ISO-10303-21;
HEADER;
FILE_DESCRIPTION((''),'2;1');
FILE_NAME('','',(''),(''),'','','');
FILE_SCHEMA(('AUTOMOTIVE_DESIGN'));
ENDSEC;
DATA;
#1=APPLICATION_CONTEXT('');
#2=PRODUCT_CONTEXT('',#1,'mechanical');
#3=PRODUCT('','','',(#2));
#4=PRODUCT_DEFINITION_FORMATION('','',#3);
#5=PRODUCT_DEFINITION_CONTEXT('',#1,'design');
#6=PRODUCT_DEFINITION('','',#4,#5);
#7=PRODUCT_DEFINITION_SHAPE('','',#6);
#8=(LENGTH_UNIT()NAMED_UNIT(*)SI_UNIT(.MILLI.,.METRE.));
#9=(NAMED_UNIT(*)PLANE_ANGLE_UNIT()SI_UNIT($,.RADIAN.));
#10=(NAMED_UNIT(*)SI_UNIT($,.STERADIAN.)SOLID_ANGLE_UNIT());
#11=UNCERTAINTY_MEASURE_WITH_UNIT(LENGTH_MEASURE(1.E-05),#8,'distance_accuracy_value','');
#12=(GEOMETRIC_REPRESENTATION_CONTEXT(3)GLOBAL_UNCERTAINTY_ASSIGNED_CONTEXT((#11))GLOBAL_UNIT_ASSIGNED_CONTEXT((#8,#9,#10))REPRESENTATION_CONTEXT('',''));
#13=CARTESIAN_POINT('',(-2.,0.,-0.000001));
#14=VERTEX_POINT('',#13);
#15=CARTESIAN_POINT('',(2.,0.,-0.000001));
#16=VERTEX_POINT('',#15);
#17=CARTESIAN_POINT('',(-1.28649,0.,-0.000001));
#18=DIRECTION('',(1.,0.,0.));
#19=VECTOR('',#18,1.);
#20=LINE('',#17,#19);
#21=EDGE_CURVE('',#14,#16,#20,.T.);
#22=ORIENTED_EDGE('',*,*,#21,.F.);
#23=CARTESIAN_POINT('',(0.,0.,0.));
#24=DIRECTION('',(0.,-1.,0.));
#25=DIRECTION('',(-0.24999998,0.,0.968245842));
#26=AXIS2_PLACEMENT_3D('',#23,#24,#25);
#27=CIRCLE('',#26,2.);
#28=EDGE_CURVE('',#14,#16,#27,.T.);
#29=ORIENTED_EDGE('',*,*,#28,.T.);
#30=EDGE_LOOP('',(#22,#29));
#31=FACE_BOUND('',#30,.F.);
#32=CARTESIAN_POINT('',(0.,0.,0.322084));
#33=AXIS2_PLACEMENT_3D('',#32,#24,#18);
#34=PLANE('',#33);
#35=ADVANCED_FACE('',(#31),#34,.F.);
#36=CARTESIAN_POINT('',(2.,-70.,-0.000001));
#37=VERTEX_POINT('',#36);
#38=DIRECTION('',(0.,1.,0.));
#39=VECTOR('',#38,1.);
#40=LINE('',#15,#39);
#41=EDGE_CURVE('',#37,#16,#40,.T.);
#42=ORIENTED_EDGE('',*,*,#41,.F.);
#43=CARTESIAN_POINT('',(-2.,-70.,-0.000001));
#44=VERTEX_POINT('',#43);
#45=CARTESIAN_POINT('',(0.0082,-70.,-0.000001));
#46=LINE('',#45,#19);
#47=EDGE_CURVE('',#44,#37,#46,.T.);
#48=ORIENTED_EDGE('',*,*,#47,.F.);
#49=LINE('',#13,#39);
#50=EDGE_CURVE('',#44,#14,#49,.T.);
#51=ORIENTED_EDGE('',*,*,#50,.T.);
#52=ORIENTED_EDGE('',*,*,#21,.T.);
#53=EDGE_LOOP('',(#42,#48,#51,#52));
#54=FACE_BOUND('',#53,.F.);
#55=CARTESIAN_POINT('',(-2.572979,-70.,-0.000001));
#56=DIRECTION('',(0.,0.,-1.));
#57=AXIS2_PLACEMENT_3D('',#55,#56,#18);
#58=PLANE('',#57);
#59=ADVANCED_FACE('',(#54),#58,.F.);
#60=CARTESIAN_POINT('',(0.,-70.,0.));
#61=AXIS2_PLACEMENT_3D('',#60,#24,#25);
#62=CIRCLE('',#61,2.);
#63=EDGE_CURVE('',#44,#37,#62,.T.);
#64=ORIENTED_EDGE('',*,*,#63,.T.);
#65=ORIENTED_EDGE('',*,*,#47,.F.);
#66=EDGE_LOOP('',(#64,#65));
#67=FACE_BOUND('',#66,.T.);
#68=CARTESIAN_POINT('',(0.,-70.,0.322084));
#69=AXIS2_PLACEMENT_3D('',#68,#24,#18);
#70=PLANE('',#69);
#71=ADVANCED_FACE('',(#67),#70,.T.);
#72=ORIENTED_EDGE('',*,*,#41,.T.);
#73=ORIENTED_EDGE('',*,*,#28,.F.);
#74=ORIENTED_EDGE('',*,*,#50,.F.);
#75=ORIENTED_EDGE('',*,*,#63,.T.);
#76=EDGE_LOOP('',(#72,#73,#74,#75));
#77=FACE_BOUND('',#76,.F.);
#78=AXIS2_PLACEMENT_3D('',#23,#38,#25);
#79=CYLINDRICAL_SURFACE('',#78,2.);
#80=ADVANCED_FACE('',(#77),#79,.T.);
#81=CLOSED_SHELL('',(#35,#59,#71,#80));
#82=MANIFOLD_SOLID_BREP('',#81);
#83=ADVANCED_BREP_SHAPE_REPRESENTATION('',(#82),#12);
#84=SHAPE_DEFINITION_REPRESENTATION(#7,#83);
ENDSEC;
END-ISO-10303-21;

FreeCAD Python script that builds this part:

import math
import FreeCAD as App
import Part
import Sketcher
from FreeCAD import Vector
Q = App.Units.Quantity


def add_polygon(sketch, points):
    """Adds a closed chain of lines whose ends are joined by coincident constraints."""
    first, n = sketch.GeometryCount, len(points)
    for a, b in zip(points, points[1:] + points[:1]):
        sketch.addGeometry(Part.LineSegment(App.Vector(*a, 0), App.Vector(*b, 0)), False)
    for i in range(n):
        sketch.addConstraint(Sketcher.Constraint("Coincident", first + i, 2, first + (i + 1) % n, 1))

doc = App.newDocument("Part")
body = doc.addObject("PartDesign::Body", "Body")

sketch1 = body.newObject("Sketcher::SketchObject", "Sketch")
sketch1.AttachmentSupport = (doc.getObject("XZ_Plane"), [""])
sketch1.MapMode = "FlatFace"
sketch1.addGeometry(Part.LineSegment(Vector(-0.5, 2.5, 0), Vector(-0.5, 1.9, 0)), False)
sketch1.addGeometry(Part.ArcOfCircle(Part.Circle(Vector(0, 0, 0), Vector(0, 0, 1), 2), math.radians(104), math.radians(436)), False)
sketch1.addGeometry(Part.LineSegment(Vector(0.5, 1.9, 0), Vector(0.5, 2.5, 0)), False)
sketch1.addGeometry(Part.LineSegment(Vector(0.5, 2.5, 0), Vector(-0.5, 2.5, 0)), False)
sketch1.addConstraint(Sketcher.Constraint("Coincident", 0, 2, 1, 1))
sketch1.addConstraint(Sketcher.Constraint("Coincident", 1, 2, 2, 1))
sketch1.addConstraint(Sketcher.Constraint("Coincident", 2, 2, 3, 1))
sketch1.addConstraint(Sketcher.Constraint("Coincident", 3, 2, 0, 1))
sketch1.addConstraint(Sketcher.Constraint("Vertical", 0))
sketch1.addConstraint(Sketcher.Constraint("Vertical", 2))
sketch1.addConstraint(Sketcher.Constraint("Horizontal", 3))
sketch1.addConstraint(Sketcher.Constraint("Coincident", 1, 3, -1, 1))
sketch1.addConstraint(Sketcher.Constraint("Horizontal", 0, 2, 1, 2))
sketch1.addConstraint(Sketcher.Constraint("Radius", 1, Q("2 mm")))
sketch1.addConstraint(Sketcher.Constraint("DistanceX", 3, 2, 3, 1, Q("1 mm")))
sketch1.addConstraint(Sketcher.Constraint("DistanceY", -1, 1, 2, 2, Q("2.5 mm")))
pad1 = body.newObject("PartDesign::Pad", "Pad")
pad1.Profile = sketch1
pad1.Length = 70

sketch2 = body.newObject("Sketcher::SketchObject", "Sketch001")
sketch2.AttachmentSupport = (doc.getObject("XZ_Plane"), [""])
sketch2.MapMode = "FlatFace"
sketch2.AttachmentOffset = App.Placement(Vector(0, 0, 60), App.Rotation())
sketch2.addGeometry(Part.ArcOfCircle(Part.Circle(Vector(0, 0.1, 0), Vector(0, 0, 1), 2), math.radians(75), math.radians(104)), False)
sketch2.addGeometry(Part.LineSegment(Vector(0.5, 2, 0), Vector(0.5, 2.6, 0)), False)
sketch2.addGeometry(Part.LineSegment(Vector(0.5, 2.6, 0), Vector(-0.5, 2.6, 0)), False)
sketch2.addGeometry(Part.LineSegment(Vector(-0.5, 2.6, 0), Vector(-0.5, 2, 0)), False)
sketch2.addConstraint(Sketcher.Constraint("Coincident", 0, 1, 1, 1))
sketch2.addConstraint(Sketcher.Constraint("Coincident", 1, 2, 2, 1))
sketch2.addConstraint(Sketcher.Constraint("Coincident", 2, 2, 3, 1))
sketch2.addConstraint(Sketcher.Constraint("Coincident", 3, 2, 0, 2))
sketch2.addConstraint(Sketcher.Constraint("Horizontal", 2))
sketch2.addConstraint(Sketcher.Constraint("Vertical", 3))
sketch2.addConstraint(Sketcher.Constraint("PointOnObject", 0, 3, -2))
sketch2.addConstraint(Sketcher.Constraint("DistanceX", 2, 2, 2, 1, Q("1 mm")))
sketch2.addConstraint(Sketcher.Constraint("DistanceX", -1, 1, 1, 2, Q("0.5 mm")))
sketch2.addConstraint(Sketcher.Constraint("Radius", 0, Q("1.999996 mm")))
sketch2.addConstraint(Sketcher.Constraint("DistanceY", 3, 2, 3, 1, Q("0.563508 mm")))
sketch2.addConstraint(Sketcher.Constraint("Distance", 1, Q("0.563829 mm")))
sketch2.addConstraint(Sketcher.Constraint("DistanceY", -1, 1, 0, 3, Q("0.089148 mm")))
pocket1 = body.newObject("PartDesign::Pocket", "Pocket")
pocket1.Profile = sketch2
pocket1.Length = 20

sketch3 = body.newObject("Sketcher::SketchObject", "Sketch002")
sketch3.AttachmentSupport = (doc.getObject("XZ_Plane"), [""])
sketch3.MapMode = "FlatFace"
sketch3.AttachmentOffset = App.Placement(Vector(0, 0, 60), App.Rotation())
sketch3.addGeometry(Part.LineSegment(Vector(-0.5, 2.5, 0), Vector(-0.5, 1.9, 0)), False)
sketch3.addGeometry(Part.ArcOfCircle(Part.Circle(Vector(0, 0, 0), Vector(0, 0, 1), 2), math.radians(76), math.radians(104)), False)
sketch3.addGeometry(Part.LineSegment(Vector(0.5, 1.9, 0), Vector(0.5, 2.5, 0)), False)
sketch3.addGeometry(Part.LineSegment(Vector(0.5, 2.5, 0), Vector(-0.5, 2.5, 0)), False)
sketch3.addConstraint(Sketcher.Constraint("Coincident", 0, 2, 1, 2))
sketch3.addConstraint(Sketcher.Constraint("Coincident", 1, 1, 2, 1))
sketch3.addConstraint(Sketcher.Constraint("Coincident", 2, 2, 3, 1))
sketch3.addConstraint(Sketcher.Constraint("Coincident", 3, 2, 0, 1))
sketch3.addConstraint(Sketcher.Constraint("Vertical", 0))
sketch3.addConstraint(Sketcher.Constraint("Vertical", 2))
sketch3.addConstraint(Sketcher.Constraint("Horizontal", 3))
sketch3.addConstraint(Sketcher.Constraint("Coincident", 1, 3, -1, 1))
sketch3.addConstraint(Sketcher.Constraint("Horizontal", 0, 2, 1, 1))
sketch3.addConstraint(Sketcher.Constraint("DistanceX", 3, 2, 3, 1, Q("1 mm")))
sketch3.addConstraint(Sketcher.Constraint("DistanceY", -1, 1, 2, 2, Q("2.5 mm")))
sketch3.addConstraint(Sketcher.Constraint("Radius", 1, Q("2.00001 mm")))
pocket2 = body.newObject("PartDesign::Pocket", "Pocket001")
pocket2.Profile = sketch3
pocket2.Length = 15

sketch4 = body.newObject("Sketcher::SketchObject", "Sketch003")
sketch4.AttachmentSupport = (doc.getObject("XZ_Plane"), [""])
sketch4.MapMode = "FlatFace"
sketch4.AttachmentOffset = App.Placement(Vector(0, 0, 70), App.Rotation())
add_polygon(sketch4, [(-2.6, 3.3), (-2.6, 0), (2.6, 0), (2.6, 3.3)])
sketch4.addConstraint(Sketcher.Constraint("Vertical", 0))
sketch4.addConstraint(Sketcher.Constraint("Horizontal", 1))
sketch4.addConstraint(Sketcher.Constraint("Vertical", 2))
sketch4.addConstraint(Sketcher.Constraint("Horizontal", 3))
sketch4.addConstraint(Sketcher.Constraint("PointOnObject", 0, 2, -1))
sketch4.addConstraint(Sketcher.Constraint("DistanceX", 1, 1, 1, 2, Q("5.162358 mm")))
sketch4.addConstraint(Sketcher.Constraint("DistanceY", 0, 2, 0, 1, Q("3.251191 mm")))
sketch4.addConstraint(Sketcher.Constraint("DistanceX", 0, 2, -1, 1, Q("2.572979 mm")))
pocket3 = body.newObject("PartDesign::Pocket", "Pocket002")
pocket3.Profile = sketch4
pocket3.Length = 100

doc.recompute()
